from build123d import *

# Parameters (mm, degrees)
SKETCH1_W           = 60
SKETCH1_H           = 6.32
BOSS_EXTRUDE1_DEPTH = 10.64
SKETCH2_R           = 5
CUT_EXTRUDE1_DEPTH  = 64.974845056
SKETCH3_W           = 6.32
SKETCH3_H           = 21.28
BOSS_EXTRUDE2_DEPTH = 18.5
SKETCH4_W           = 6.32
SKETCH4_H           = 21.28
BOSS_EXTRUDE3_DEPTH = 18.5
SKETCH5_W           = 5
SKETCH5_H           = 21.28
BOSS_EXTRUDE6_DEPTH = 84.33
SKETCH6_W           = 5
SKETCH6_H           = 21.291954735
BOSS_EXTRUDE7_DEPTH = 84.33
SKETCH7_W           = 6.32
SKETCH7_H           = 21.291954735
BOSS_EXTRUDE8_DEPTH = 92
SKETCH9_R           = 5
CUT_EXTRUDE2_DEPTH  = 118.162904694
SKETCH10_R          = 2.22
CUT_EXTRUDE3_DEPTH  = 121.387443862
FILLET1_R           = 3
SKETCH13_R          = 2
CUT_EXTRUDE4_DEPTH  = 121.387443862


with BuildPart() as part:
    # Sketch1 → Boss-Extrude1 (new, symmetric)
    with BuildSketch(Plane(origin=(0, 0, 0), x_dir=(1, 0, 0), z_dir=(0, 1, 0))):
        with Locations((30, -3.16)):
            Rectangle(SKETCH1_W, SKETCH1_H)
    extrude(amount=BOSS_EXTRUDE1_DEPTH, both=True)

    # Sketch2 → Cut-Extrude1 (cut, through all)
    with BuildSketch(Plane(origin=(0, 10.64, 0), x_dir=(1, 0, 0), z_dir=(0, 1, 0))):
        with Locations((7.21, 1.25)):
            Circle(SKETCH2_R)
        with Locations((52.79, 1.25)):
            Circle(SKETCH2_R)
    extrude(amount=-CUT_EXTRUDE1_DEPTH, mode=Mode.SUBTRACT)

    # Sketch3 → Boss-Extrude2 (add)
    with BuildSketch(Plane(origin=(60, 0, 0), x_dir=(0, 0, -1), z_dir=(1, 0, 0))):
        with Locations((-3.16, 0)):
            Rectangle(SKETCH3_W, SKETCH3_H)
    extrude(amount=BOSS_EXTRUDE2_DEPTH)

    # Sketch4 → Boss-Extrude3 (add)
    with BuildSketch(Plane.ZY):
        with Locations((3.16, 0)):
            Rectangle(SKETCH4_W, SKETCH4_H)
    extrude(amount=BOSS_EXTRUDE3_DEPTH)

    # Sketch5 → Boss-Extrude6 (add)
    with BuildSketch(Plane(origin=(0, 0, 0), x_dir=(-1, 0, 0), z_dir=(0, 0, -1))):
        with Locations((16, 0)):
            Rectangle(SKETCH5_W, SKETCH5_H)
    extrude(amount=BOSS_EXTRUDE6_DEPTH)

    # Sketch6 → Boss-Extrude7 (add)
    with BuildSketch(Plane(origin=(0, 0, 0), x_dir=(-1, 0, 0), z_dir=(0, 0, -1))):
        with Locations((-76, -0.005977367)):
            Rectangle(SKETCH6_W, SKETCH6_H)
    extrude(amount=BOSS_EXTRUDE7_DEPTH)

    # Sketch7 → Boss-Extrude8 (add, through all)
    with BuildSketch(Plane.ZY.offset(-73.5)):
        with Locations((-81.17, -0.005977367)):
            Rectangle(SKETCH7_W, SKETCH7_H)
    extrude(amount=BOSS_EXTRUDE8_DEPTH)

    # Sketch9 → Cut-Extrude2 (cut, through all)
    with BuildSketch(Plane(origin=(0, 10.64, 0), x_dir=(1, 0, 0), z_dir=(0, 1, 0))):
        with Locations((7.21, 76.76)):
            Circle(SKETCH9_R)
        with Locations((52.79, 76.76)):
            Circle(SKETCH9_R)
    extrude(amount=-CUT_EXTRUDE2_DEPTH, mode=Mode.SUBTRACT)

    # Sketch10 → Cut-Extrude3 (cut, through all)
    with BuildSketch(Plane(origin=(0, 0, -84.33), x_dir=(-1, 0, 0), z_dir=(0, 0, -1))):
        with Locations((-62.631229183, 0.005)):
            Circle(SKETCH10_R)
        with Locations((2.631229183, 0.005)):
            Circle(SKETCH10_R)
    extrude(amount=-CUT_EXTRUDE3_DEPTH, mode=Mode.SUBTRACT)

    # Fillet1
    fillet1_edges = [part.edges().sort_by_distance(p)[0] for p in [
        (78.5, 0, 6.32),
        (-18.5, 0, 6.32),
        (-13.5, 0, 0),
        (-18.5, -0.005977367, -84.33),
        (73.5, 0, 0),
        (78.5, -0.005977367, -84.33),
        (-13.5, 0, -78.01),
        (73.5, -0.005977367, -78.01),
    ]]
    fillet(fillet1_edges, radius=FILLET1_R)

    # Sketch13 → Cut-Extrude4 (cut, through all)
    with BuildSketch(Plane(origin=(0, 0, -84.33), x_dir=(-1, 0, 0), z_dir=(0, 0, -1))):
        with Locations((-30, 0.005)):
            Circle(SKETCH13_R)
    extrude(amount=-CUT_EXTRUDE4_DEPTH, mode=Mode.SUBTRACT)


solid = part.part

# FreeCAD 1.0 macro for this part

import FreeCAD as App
import Part
import Sketcher

V = App.Vector
Q = App.Units.Quantity


def edges_at(feature, points):
    """Names of the edges that pass closest to the given points."""
    edges = feature.Shape.Edges
    near = lambda p: min(range(len(edges)), key=lambda i: edges[i].distToShape(Part.Vertex(*p))[0])
    return sorted({f"Edge{near(p) + 1}" for p in points})

doc = App.newDocument("Part")
body = doc.addObject("PartDesign::Body", "Body")

# Sketch on XZ plane
sketch1 = doc.addObject("Sketcher::SketchObject", "Sketch")
body.addObject(sketch1)
sketch1.AttachmentSupport = (doc.XZ_Plane, [""])
sketch1.MapMode = "FlatFace"
sketch1.addGeometry([
    Part.LineSegment(V(0, 0, 0), V(0, 6.32, 0)),
    Part.LineSegment(V(0, 6.32, 0), V(60, 6.32, 0)),
    Part.LineSegment(V(60, 6.32, 0), V(60, 0, 0)),
    Part.LineSegment(V(60, 0, 0), V(0, 0, 0)),
], False)
sketch1.addConstraint([
    Sketcher.Constraint("Coincident", 0, 2, 1, 1),
    Sketcher.Constraint("Coincident", 1, 2, 2, 1),
    Sketcher.Constraint("Coincident", 2, 2, 3, 1),
    Sketcher.Constraint("Coincident", 3, 2, 0, 1),
    Sketcher.Constraint("Vertical", 0),
    Sketcher.Constraint("Horizontal", 1),
    Sketcher.Constraint("Vertical", 2),
    Sketcher.Constraint("Horizontal", 3),
    Sketcher.Constraint("Coincident", 3, 2, -1, 1),
    Sketcher.Constraint("DistanceX", 1, 1, 1, 2, Q("60 mm")),
    Sketcher.Constraint("DistanceY", 0, 1, 0, 2, Q("6.32 mm")),
])
pad1 = doc.addObject("PartDesign::Pad", "Pad")
body.addObject(pad1)
pad1.Profile = sketch1
pad1.Length = 21.28
pad1.Midplane = True

# Sketch on XZ plane
sketch2 = doc.addObject("Sketcher::SketchObject", "Sketch001")
body.addObject(sketch2)
sketch2.AttachmentSupport = (doc.XZ_Plane, [""])
sketch2.MapMode = "FlatFace"
sketch2.AttachmentOffset = App.Placement(V(0, 0, -10.64), App.Rotation())
sketch2.addGeometry([
    Part.Circle(V(7.21, -1.25, 0), V(0, 0, 1), 5),
    Part.Circle(V(52.79, -1.25, 0), V(0, 0, 1), 5),
], False)
sketch2.addConstraint([
    Sketcher.Constraint("Equal", 0, 1),
    Sketcher.Constraint("Horizontal", 0, 3, 1, 3),
    Sketcher.Constraint("Diameter", 0, Q("10 mm")),
    Sketcher.Constraint("DistanceX", -1, 1, 0, 3, Q("7.21 mm")),
    Sketcher.Constraint("DistanceY", 0, 3, -1, 1, Q("1.25 mm")),
    Sketcher.Constraint("DistanceX", -1, 1, 1, 3, Q("52.79 mm")),
])
pocket1 = doc.addObject("PartDesign::Pocket", "Pocket")
body.addObject(pocket1)
pocket1.Profile = sketch2
pocket1.Type = "ThroughAll"
pocket1.Reversed = True

# Sketch on YZ plane
sketch3 = doc.addObject("Sketcher::SketchObject", "Sketch002")
body.addObject(sketch3)
sketch3.AttachmentSupport = (doc.YZ_Plane, [""])
sketch3.MapMode = "FlatFace"
sketch3.AttachmentOffset = App.Placement(V(0, 0, 60), App.Rotation())
sketch3.addGeometry([
    Part.LineSegment(V(10.64, 6.32, 0), V(-10.64, 6.32, 0)),
    Part.LineSegment(V(-10.64, 6.32, 0), V(-10.64, 0, 0)),
    Part.LineSegment(V(-10.64, 0, 0), V(10.64, 0, 0)),
    Part.LineSegment(V(10.64, 0, 0), V(10.64, 6.32, 0)),
], False)
sketch3.addConstraint([
    Sketcher.Constraint("Coincident", 0, 2, 1, 1),
    Sketcher.Constraint("Coincident", 1, 2, 2, 1),
    Sketcher.Constraint("Coincident", 2, 2, 3, 1),
    Sketcher.Constraint("Coincident", 3, 2, 0, 1),
    Sketcher.Constraint("Horizontal", 0),
    Sketcher.Constraint("Vertical", 1),
    Sketcher.Constraint("Horizontal", 2),
    Sketcher.Constraint("Vertical", 3),
    Sketcher.Constraint("Symmetric", 1, 2, 2, 2, -1, 1),
    Sketcher.Constraint("DistanceX", 0, 2, 0, 1, Q("21.28 mm")),
    Sketcher.Constraint("DistanceY", 1, 2, 1, 1, Q("6.32 mm")),
])
pad2 = doc.addObject("PartDesign::Pad", "Pad001")
body.addObject(pad2)
pad2.Profile = sketch3
pad2.Length = 18.5

# Sketch on YZ plane
sketch4 = doc.addObject("Sketcher::SketchObject", "Sketch003")
body.addObject(sketch4)
sketch4.AttachmentSupport = (doc.YZ_Plane, [""])
sketch4.MapMode = "FlatFace"
sketch4.addGeometry([
    Part.LineSegment(V(10.64, 0, 0), V(-10.64, 0, 0)),
    Part.LineSegment(V(-10.64, 0, 0), V(-10.64, 6.32, 0)),
    Part.LineSegment(V(-10.64, 6.32, 0), V(10.64, 6.32, 0)),
    Part.LineSegment(V(10.64, 6.32, 0), V(10.64, 0, 0)),
], False)
sketch4.addConstraint([
    Sketcher.Constraint("Coincident", 0, 2, 1, 1),
    Sketcher.Constraint("Coincident", 1, 2, 2, 1),
    Sketcher.Constraint("Coincident", 2, 2, 3, 1),
    Sketcher.Constraint("Coincident", 3, 2, 0, 1),
    Sketcher.Constraint("Horizontal", 0),
    Sketcher.Constraint("Vertical", 1),
    Sketcher.Constraint("Horizontal", 2),
    Sketcher.Constraint("Vertical", 3),
    Sketcher.Constraint("Symmetric", 0, 2, 3, 2, -1, 1),
    Sketcher.Constraint("DistanceX", 0, 2, 0, 1, Q("21.28 mm")),
    Sketcher.Constraint("DistanceY", 1, 1, 1, 2, Q("6.32 mm")),
])
pad3 = doc.addObject("PartDesign::Pad", "Pad002")
body.addObject(pad3)
pad3.Profile = sketch4
pad3.Length = 18.5
pad3.Reversed = True

# Sketch on XY plane
sketch5 = doc.addObject("Sketcher::SketchObject", "Sketch004")
body.addObject(sketch5)
sketch5.AttachmentSupport = (doc.XY_Plane, [""])
sketch5.MapMode = "FlatFace"
sketch5.addGeometry([
    Part.LineSegment(V(-13.5, 10.64, 0), V(-13.5, -10.64, 0)),
    Part.LineSegment(V(-13.5, -10.64, 0), V(-18.5, -10.64, 0)),
    Part.LineSegment(V(-18.5, -10.64, 0), V(-18.5, 10.64, 0)),
    Part.LineSegment(V(-18.5, 10.64, 0), V(-13.5, 10.64, 0)),
], False)
sketch5.addConstraint([
    Sketcher.Constraint("Coincident", 0, 2, 1, 1),
    Sketcher.Constraint("Coincident", 1, 2, 2, 1),
    Sketcher.Constraint("Coincident", 2, 2, 3, 1),
    Sketcher.Constraint("Coincident", 3, 2, 0, 1),
    Sketcher.Constraint("Vertical", 0),
    Sketcher.Constraint("Horizontal", 1),
    Sketcher.Constraint("Vertical", 2),
    Sketcher.Constraint("Horizontal", 3),
    Sketcher.Constraint("DistanceX", 1, 2, 1, 1, Q("5 mm")),
    Sketcher.Constraint("DistanceY", 0, 2, 0, 1, Q("21.28 mm")),
    Sketcher.Constraint("DistanceX", 0, 2, -1, 1, Q("13.5 mm")),
    Sketcher.Constraint("DistanceY", 0, 2, -1, 1, Q("10.64 mm")),
])
pad4 = doc.addObject("PartDesign::Pad", "Pad003")
body.addObject(pad4)
pad4.Profile = sketch5
pad4.Length = 84.33
pad4.Reversed = True

# Sketch on XY plane
sketch6 = doc.addObject("Sketcher::SketchObject", "Sketch005")
body.addObject(sketch6)
sketch6.AttachmentSupport = (doc.XY_Plane, [""])
sketch6.MapMode = "FlatFace"
sketch6.addGeometry([
    Part.LineSegment(V(78.5, 10.64, 0), V(78.5, -10.651955, 0)),
    Part.LineSegment(V(78.5, -10.651955, 0), V(73.5, -10.651955, 0)),
    Part.LineSegment(V(73.5, -10.651955, 0), V(73.5, 10.64, 0)),
    Part.LineSegment(V(73.5, 10.64, 0), V(78.5, 10.64, 0)),
], False)
sketch6.addConstraint([
    Sketcher.Constraint("Coincident", 0, 2, 1, 1),
    Sketcher.Constraint("Coincident", 1, 2, 2, 1),
    Sketcher.Constraint("Coincident", 2, 2, 3, 1),
    Sketcher.Constraint("Coincident", 3, 2, 0, 1),
    Sketcher.Constraint("Vertical", 0),
    Sketcher.Constraint("Horizontal", 1),
    Sketcher.Constraint("Vertical", 2),
    Sketcher.Constraint("Horizontal", 3),
    Sketcher.Constraint("DistanceX", 1, 2, 1, 1, Q("5 mm")),
    Sketcher.Constraint("DistanceX", -1, 1, 0, 2, Q("78.5 mm")),
    Sketcher.Constraint("DistanceY", -1, 1, 2, 2, Q("10.64 mm")),
    Sketcher.Constraint("DistanceY", 0, 2, 0, 1, Q("21.291955 mm")),
])
pad5 = doc.addObject("PartDesign::Pad", "Pad004")
body.addObject(pad5)
pad5.Profile = sketch6
pad5.Length = 84.33
pad5.Reversed = True

# Sketch on YZ plane
sketch7 = doc.addObject("Sketcher::SketchObject", "Sketch006")
body.addObject(sketch7)
sketch7.AttachmentSupport = (doc.YZ_Plane, [""])
sketch7.MapMode = "FlatFace"
sketch7.AttachmentOffset = App.Placement(V(0, 0, 73.5), App.Rotation())
sketch7.addGeometry([
    Part.LineSegment(V(10.64, -84.33, 0), V(-10.651955, -84.33, 0)),
    Part.LineSegment(V(-10.651955, -84.33, 0), V(-10.651955, -78.01, 0)),
    Part.LineSegment(V(-10.651955, -78.01, 0), V(10.64, -78.01, 0)),
    Part.LineSegment(V(10.64, -78.01, 0), V(10.64, -84.33, 0)),
], False)
sketch7.addConstraint([
    Sketcher.Constraint("Coincident", 0, 2, 1, 1),
    Sketcher.Constraint("Coincident", 1, 2, 2, 1),
    Sketcher.Constraint("Coincident", 2, 2, 3, 1),
    Sketcher.Constraint("Coincident", 3, 2, 0, 1),
    Sketcher.Constraint("Horizontal", 0),
    Sketcher.Constraint("Vertical", 1),
    Sketcher.Constraint("Horizontal", 2),
    Sketcher.Constraint("Vertical", 3),
    Sketcher.Constraint("DistanceY", 1, 1, 1, 2, Q("6.32 mm")),
    Sketcher.Constraint("DistanceY", 0, 2, -1, 1, Q("84.33 mm")),
    Sketcher.Constraint("DistanceX", -1, 1, 2, 2, Q("10.64 mm")),
    Sketcher.Constraint("DistanceX", 0, 2, 0, 1, Q("21.291955 mm")),
])
pad6 = doc.addObject("PartDesign::Pad", "Pad005")
body.addObject(pad6)
pad6.Profile = sketch7
pad6.Type = "UpToLast"
pad6.Reversed = True

# Sketch on XZ plane
sketch8 = doc.addObject("Sketcher::SketchObject", "Sketch007")
body.addObject(sketch8)
sketch8.AttachmentSupport = (doc.XZ_Plane, [""])
sketch8.MapMode = "FlatFace"
sketch8.AttachmentOffset = App.Placement(V(0, 0, -10.64), App.Rotation())
sketch8.addGeometry([
    Part.Circle(V(7.21, -76.76, 0), V(0, 0, 1), 5),
    Part.Circle(V(52.79, -76.76, 0), V(0, 0, 1), 5),
], False)
sketch8.addConstraint([
    Sketcher.Constraint("Equal", 0, 1),
    Sketcher.Constraint("Horizontal", 0, 3, 1, 3),
    Sketcher.Constraint("Diameter", 0, Q("10 mm")),
    Sketcher.Constraint("DistanceX", -1, 1, 0, 3, Q("7.21 mm")),
    Sketcher.Constraint("DistanceY", 0, 3, -1, 1, Q("76.76 mm")),
    Sketcher.Constraint("DistanceX", -1, 1, 1, 3, Q("52.79 mm")),
])
pocket2 = doc.addObject("PartDesign::Pocket", "Pocket001")
body.addObject(pocket2)
pocket2.Profile = sketch8
pocket2.Type = "ThroughAll"
pocket2.Reversed = True

# Sketch on XY plane
sketch9 = doc.addObject("Sketcher::SketchObject", "Sketch008")
body.addObject(sketch9)
sketch9.AttachmentSupport = (doc.XY_Plane, [""])
sketch9.MapMode = "FlatFace"
sketch9.AttachmentOffset = App.Placement(V(0, 0, -84.33), App.Rotation())
sketch9.addGeometry([
    Part.Circle(V(62.631229, 0.005, 0), V(0, 0, 1), 2.22),
    Part.Circle(V(-2.631229, 0.005, 0), V(0, 0, 1), 2.22),
], False)
sketch9.addConstraint([
    Sketcher.Constraint("Equal", 0, 1),
    Sketcher.Constraint("Horizontal", 0, 3, 1, 3),
    Sketcher.Constraint("Diameter", 0, Q("4.44 mm")),
    Sketcher.Constraint("DistanceY", -1, 1, 0, 3, Q("0.005 mm")),
    Sketcher.Constraint("DistanceX", -1, 1, 0, 3, Q("62.631229 mm")),
    Sketcher.Constraint("DistanceX", 1, 3, -1, 1, Q("2.631229 mm")),
])
pocket3 = doc.addObject("PartDesign::Pocket", "Pocket002")
body.addObject(pocket3)
pocket3.Profile = sketch9
pocket3.Type = "ThroughAll"
pocket3.Reversed = True
doc.recompute()

fillet = doc.addObject("PartDesign::Fillet", "Fillet")
body.addObject(fillet)
fillet.Base = (pocket3, edges_at(pocket3, [
    (78.5, 0, 6.32),
    (-18.5, 0, 6.32),
    (-13.5, 0, 0),
    (-18.5, -0.006, -84.33),
    (73.5, 0, 0),
    (78.5, -0.006, -84.33),
    (-13.5, 0, -78.01),
    (73.5, -0.006, -78.01),
]))
fillet.Radius = 3

# Sketch on XY plane
sketch10 = doc.addObject("Sketcher::SketchObject", "Sketch009")
body.addObject(sketch10)
sketch10.AttachmentSupport = (doc.XY_Plane, [""])
sketch10.MapMode = "FlatFace"
sketch10.AttachmentOffset = App.Placement(V(0, 0, -84.33), App.Rotation())
sketch10.addGeometry(Part.Circle(V(30, 0.005, 0), V(0, 0, 1), 2), False)
sketch10.addConstraint([
    Sketcher.Constraint("Diameter", 0, Q("4 mm")),
    Sketcher.Constraint("DistanceX", -1, 1, 0, 3, Q("30 mm")),
    Sketcher.Constraint("DistanceY", -1, 1, 0, 3, Q("0.005 mm")),
])
pocket4 = doc.addObject("PartDesign::Pocket", "Pocket003")
body.addObject(pocket4)
pocket4.Profile = sketch10
pocket4.Type = "ThroughAll"
pocket4.Reversed = True

doc.recompute()
